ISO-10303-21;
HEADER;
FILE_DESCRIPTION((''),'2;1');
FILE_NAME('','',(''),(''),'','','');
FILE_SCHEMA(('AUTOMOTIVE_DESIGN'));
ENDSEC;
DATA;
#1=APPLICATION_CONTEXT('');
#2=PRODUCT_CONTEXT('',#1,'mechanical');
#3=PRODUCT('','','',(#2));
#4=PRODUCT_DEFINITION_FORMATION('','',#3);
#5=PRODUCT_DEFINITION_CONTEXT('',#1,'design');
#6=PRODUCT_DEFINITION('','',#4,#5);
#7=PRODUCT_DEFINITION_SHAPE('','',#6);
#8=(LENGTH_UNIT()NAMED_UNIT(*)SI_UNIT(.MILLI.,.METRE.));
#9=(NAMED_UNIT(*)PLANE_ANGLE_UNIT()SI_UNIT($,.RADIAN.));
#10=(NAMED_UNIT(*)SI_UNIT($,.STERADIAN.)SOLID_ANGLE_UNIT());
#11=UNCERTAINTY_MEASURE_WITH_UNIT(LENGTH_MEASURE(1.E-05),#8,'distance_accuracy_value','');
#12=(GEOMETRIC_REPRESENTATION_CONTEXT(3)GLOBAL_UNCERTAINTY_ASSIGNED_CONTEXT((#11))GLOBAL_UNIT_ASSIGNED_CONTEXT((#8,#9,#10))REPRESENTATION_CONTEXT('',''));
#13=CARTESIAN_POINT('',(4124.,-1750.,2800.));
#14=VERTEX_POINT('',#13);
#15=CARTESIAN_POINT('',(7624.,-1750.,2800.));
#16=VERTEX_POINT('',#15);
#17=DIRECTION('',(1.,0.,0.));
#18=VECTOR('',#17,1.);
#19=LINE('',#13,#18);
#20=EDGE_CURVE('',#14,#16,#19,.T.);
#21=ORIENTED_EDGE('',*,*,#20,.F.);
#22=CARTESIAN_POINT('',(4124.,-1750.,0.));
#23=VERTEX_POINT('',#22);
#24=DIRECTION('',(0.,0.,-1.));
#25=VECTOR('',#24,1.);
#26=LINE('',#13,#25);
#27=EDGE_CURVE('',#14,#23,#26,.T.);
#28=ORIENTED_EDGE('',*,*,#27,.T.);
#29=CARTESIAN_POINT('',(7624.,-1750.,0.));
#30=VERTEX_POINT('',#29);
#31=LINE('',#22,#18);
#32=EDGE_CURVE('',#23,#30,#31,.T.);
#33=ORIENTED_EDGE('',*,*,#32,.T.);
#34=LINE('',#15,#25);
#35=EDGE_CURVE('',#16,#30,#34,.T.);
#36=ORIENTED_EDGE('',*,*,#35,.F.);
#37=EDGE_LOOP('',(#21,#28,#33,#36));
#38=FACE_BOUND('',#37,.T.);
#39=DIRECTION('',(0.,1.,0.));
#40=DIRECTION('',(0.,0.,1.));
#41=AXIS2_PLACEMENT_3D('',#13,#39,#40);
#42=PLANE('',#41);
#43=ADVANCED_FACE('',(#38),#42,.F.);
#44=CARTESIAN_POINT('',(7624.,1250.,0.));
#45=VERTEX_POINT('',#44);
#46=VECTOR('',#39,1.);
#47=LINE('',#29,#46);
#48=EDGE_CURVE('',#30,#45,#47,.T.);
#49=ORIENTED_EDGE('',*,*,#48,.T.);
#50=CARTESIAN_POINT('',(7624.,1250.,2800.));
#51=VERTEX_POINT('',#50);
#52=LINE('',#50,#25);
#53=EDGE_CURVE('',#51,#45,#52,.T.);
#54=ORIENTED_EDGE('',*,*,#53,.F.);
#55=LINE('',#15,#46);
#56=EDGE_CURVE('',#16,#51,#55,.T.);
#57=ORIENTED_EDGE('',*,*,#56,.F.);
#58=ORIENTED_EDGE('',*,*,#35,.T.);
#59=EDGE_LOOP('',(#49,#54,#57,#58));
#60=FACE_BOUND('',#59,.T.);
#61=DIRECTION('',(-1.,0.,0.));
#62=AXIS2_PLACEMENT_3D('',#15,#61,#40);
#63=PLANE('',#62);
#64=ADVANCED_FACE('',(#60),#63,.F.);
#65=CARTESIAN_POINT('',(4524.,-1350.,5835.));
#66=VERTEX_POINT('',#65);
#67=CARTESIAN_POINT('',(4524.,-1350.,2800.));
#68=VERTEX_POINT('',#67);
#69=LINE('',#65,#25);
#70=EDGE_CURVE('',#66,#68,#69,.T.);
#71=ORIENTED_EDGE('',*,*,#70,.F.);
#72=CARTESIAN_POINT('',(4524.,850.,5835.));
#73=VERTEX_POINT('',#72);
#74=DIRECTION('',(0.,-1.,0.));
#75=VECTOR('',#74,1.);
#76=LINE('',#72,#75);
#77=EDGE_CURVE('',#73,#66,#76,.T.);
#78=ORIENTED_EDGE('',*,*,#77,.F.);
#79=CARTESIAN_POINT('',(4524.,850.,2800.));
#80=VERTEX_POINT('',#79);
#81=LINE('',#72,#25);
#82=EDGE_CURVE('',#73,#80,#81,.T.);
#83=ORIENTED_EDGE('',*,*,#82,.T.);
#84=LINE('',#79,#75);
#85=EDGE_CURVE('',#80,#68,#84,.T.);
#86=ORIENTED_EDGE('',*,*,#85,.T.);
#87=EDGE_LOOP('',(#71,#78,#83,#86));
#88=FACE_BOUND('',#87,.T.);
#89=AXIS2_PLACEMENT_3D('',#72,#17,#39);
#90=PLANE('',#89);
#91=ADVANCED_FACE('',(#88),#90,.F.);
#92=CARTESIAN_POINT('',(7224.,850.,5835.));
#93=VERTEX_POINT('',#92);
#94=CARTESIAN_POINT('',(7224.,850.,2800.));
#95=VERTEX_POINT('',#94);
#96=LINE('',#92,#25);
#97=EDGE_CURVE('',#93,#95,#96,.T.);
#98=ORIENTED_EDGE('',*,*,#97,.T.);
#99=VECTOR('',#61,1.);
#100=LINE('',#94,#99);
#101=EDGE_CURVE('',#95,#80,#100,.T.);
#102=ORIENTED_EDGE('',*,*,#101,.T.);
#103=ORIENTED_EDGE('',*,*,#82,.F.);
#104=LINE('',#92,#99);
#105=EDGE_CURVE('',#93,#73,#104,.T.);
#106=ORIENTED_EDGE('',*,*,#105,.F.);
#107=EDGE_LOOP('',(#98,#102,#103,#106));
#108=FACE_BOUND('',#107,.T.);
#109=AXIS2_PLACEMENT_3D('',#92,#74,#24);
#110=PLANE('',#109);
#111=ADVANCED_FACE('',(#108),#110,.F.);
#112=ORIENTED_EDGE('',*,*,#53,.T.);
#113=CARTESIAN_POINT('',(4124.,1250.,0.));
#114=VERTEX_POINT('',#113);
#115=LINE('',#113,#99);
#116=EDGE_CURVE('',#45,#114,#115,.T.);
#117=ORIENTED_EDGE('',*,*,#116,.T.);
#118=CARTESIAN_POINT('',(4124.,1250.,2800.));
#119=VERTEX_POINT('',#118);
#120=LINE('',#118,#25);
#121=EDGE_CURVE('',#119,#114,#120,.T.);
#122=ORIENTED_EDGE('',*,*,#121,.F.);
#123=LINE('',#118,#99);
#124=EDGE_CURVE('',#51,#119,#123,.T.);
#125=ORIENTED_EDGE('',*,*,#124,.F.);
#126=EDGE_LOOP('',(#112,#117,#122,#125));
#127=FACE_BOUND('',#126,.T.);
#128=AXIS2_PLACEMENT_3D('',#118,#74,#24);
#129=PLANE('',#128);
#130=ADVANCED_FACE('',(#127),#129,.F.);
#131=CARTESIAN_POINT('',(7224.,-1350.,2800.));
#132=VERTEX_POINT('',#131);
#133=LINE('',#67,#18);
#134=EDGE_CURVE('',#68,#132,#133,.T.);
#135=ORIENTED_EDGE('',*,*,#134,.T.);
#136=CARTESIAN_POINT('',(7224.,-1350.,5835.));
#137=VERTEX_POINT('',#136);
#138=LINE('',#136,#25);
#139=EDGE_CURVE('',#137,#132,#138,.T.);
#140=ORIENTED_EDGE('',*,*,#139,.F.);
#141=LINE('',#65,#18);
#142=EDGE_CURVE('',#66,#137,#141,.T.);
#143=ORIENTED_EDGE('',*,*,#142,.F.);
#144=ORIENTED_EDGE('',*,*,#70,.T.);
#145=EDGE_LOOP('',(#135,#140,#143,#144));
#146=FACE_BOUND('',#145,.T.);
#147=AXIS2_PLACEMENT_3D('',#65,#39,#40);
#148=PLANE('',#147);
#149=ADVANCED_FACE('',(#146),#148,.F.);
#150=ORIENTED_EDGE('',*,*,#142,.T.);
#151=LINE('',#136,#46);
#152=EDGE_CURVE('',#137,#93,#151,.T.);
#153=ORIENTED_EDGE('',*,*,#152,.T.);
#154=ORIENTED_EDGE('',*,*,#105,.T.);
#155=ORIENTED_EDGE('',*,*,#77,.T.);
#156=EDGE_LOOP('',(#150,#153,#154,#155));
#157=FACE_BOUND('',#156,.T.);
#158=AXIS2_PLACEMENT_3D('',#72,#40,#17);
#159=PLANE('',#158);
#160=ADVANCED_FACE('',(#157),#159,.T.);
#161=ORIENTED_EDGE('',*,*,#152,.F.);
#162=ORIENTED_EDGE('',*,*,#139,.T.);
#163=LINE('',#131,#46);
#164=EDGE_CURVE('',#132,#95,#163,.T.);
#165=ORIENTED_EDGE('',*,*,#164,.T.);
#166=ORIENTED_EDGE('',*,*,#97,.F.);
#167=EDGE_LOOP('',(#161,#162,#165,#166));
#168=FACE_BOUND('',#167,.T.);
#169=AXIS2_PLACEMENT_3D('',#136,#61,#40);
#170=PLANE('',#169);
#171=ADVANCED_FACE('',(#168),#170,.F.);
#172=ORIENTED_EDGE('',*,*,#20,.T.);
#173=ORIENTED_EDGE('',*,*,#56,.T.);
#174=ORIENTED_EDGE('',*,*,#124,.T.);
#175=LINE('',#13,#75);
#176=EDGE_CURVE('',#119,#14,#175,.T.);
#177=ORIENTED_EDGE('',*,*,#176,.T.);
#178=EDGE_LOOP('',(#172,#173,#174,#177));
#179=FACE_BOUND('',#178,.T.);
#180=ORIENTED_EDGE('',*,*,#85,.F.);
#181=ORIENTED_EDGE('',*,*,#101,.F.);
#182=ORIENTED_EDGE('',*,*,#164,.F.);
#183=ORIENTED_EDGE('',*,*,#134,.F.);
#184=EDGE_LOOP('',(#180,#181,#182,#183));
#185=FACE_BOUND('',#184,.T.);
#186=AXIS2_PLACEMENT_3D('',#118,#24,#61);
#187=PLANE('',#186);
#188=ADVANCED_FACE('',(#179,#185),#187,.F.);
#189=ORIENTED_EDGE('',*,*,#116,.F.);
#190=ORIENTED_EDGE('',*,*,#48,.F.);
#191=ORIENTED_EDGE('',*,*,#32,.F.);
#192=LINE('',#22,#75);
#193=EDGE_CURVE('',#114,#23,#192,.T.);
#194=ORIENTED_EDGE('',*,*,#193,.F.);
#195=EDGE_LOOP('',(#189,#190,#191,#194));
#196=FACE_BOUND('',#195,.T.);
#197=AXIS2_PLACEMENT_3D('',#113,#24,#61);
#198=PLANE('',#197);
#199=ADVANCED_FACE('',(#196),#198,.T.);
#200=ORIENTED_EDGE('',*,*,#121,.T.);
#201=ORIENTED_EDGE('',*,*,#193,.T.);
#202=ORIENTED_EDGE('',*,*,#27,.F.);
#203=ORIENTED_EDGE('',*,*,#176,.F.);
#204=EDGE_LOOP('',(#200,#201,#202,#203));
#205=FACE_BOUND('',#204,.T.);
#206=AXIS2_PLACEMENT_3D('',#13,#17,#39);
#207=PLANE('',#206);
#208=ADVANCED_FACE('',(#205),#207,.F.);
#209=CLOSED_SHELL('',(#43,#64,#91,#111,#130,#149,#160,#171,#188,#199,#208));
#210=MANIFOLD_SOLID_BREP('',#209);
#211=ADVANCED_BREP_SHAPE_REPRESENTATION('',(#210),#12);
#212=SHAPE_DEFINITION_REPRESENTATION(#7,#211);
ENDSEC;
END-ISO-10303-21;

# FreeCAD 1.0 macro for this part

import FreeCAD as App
import Part
import Sketcher
from FreeCAD import Vector

doc = App.newDocument("Part")
params = doc.addObject("Spreadsheet::Sheet", "Params")
for row, (alias, value) in enumerate([
    ("sketch1_width", "3500 mm"),
    ("sketch1_height", "3000 mm"),
    ("pad1_length", "2800 mm"),
    ("sketch2_width", "2700 mm"),
    ("sketch2_height", "2200 mm"),
    ("pad2_length", "3035 mm"),
], start=1):
    params.set(f"A{row}", alias)
    params.set(f"B{row}", "=" + value)
    params.setAlias(f"B{row}", alias)

body = doc.addObject("PartDesign::Body", "Body")

# Sketch on XY plane
sketch1 = doc.addObject("Sketcher::SketchObject", "Sketch")
body.addObject(sketch1)
sketch1.AttachmentSupport = (doc.XY_Plane, [""])
sketch1.MapMode = "FlatFace"
sketch1.addGeometry([
    Part.LineSegment(Vector(4124, 1250, 0), Vector(4124, -1750, 0)),
    Part.LineSegment(Vector(4124, -1750, 0), Vector(7624, -1750, 0)),
    Part.LineSegment(Vector(7624, -1750, 0), Vector(7624, 1250, 0)),
    Part.LineSegment(Vector(7624, 1250, 0), Vector(4124, 1250, 0)),
], False)
sketch1.addConstraint([
    Sketcher.Constraint("Coincident", 0, 2, 1, 1),
    Sketcher.Constraint("Coincident", 1, 2, 2, 1),
    Sketcher.Constraint("Coincident", 2, 2, 3, 1),
    Sketcher.Constraint("Coincident", 3, 2, 0, 1),
    Sketcher.Constraint("Vertical", 0),
    Sketcher.Constraint("Horizontal", 1),
    Sketcher.Constraint("Vertical", 2),
    Sketcher.Constraint("Horizontal", 3),
    Sketcher.Constraint("DistanceX", 1, 1, 1, 2, 3500.0),
    Sketcher.Constraint("DistanceY", 0, 2, 0, 1, 3000.0),
    Sketcher.Constraint("DistanceX", -1, 1, 0, 2, 4124.0),
    Sketcher.Constraint("DistanceY", 0, 2, -1, 1, 1750.0),
])
sketch1.setExpression("Constraints[8]", "Params.sketch1_width")
sketch1.setExpression("Constraints[9]", "Params.sketch1_height")
pad1 = doc.addObject("PartDesign::Pad", "Pad")
body.addObject(pad1)
pad1.Profile = sketch1
pad1.setExpression("Length", "Params.pad1_length")

# Sketch on XY plane
sketch2 = doc.addObject("Sketcher::SketchObject", "Sketch001")
body.addObject(sketch2)
sketch2.AttachmentSupport = (doc.XY_Plane, [""])
sketch2.MapMode = "FlatFace"
sketch2.AttachmentOffset = App.Placement(Vector(0, 0, 2800), App.Rotation())
sketch2.addGeometry([
    Part.LineSegment(Vector(4524, 850, 0), Vector(4524, -1350, 0)),
    Part.LineSegment(Vector(4524, -1350, 0), Vector(7224, -1350, 0)),
    Part.LineSegment(Vector(7224, -1350, 0), Vector(7224, 850, 0)),
    Part.LineSegment(Vector(7224, 850, 0), Vector(4524, 850, 0)),
], False)
sketch2.addConstraint([
    Sketcher.Constraint("Coincident", 0, 2, 1, 1),
    Sketcher.Constraint("Coincident", 1, 2, 2, 1),
    Sketcher.Constraint("Coincident", 2, 2, 3, 1),
    Sketcher.Constraint("Coincident", 3, 2, 0, 1),
    Sketcher.Constraint("Vertical", 0),
    Sketcher.Constraint("Horizontal", 1),
    Sketcher.Constraint("Vertical", 2),
    Sketcher.Constraint("Horizontal", 3),
    Sketcher.Constraint("DistanceX", 1, 1, 1, 2, 2700.0),
    Sketcher.Constraint("DistanceY", 0, 2, 0, 1, 2200.0),
    Sketcher.Constraint("DistanceX", -1, 1, 0, 2, 4524.0),
    Sketcher.Constraint("DistanceY", 0, 2, -1, 1, 1350.0),
])
sketch2.setExpression("Constraints[8]", "Params.sketch2_width")
sketch2.setExpression("Constraints[9]", "Params.sketch2_height")
pad2 = doc.addObject("PartDesign::Pad", "Pad001")
body.addObject(pad2)
pad2.Profile = sketch2
pad2.setExpression("Length", "Params.pad2_length")

doc.recompute()
